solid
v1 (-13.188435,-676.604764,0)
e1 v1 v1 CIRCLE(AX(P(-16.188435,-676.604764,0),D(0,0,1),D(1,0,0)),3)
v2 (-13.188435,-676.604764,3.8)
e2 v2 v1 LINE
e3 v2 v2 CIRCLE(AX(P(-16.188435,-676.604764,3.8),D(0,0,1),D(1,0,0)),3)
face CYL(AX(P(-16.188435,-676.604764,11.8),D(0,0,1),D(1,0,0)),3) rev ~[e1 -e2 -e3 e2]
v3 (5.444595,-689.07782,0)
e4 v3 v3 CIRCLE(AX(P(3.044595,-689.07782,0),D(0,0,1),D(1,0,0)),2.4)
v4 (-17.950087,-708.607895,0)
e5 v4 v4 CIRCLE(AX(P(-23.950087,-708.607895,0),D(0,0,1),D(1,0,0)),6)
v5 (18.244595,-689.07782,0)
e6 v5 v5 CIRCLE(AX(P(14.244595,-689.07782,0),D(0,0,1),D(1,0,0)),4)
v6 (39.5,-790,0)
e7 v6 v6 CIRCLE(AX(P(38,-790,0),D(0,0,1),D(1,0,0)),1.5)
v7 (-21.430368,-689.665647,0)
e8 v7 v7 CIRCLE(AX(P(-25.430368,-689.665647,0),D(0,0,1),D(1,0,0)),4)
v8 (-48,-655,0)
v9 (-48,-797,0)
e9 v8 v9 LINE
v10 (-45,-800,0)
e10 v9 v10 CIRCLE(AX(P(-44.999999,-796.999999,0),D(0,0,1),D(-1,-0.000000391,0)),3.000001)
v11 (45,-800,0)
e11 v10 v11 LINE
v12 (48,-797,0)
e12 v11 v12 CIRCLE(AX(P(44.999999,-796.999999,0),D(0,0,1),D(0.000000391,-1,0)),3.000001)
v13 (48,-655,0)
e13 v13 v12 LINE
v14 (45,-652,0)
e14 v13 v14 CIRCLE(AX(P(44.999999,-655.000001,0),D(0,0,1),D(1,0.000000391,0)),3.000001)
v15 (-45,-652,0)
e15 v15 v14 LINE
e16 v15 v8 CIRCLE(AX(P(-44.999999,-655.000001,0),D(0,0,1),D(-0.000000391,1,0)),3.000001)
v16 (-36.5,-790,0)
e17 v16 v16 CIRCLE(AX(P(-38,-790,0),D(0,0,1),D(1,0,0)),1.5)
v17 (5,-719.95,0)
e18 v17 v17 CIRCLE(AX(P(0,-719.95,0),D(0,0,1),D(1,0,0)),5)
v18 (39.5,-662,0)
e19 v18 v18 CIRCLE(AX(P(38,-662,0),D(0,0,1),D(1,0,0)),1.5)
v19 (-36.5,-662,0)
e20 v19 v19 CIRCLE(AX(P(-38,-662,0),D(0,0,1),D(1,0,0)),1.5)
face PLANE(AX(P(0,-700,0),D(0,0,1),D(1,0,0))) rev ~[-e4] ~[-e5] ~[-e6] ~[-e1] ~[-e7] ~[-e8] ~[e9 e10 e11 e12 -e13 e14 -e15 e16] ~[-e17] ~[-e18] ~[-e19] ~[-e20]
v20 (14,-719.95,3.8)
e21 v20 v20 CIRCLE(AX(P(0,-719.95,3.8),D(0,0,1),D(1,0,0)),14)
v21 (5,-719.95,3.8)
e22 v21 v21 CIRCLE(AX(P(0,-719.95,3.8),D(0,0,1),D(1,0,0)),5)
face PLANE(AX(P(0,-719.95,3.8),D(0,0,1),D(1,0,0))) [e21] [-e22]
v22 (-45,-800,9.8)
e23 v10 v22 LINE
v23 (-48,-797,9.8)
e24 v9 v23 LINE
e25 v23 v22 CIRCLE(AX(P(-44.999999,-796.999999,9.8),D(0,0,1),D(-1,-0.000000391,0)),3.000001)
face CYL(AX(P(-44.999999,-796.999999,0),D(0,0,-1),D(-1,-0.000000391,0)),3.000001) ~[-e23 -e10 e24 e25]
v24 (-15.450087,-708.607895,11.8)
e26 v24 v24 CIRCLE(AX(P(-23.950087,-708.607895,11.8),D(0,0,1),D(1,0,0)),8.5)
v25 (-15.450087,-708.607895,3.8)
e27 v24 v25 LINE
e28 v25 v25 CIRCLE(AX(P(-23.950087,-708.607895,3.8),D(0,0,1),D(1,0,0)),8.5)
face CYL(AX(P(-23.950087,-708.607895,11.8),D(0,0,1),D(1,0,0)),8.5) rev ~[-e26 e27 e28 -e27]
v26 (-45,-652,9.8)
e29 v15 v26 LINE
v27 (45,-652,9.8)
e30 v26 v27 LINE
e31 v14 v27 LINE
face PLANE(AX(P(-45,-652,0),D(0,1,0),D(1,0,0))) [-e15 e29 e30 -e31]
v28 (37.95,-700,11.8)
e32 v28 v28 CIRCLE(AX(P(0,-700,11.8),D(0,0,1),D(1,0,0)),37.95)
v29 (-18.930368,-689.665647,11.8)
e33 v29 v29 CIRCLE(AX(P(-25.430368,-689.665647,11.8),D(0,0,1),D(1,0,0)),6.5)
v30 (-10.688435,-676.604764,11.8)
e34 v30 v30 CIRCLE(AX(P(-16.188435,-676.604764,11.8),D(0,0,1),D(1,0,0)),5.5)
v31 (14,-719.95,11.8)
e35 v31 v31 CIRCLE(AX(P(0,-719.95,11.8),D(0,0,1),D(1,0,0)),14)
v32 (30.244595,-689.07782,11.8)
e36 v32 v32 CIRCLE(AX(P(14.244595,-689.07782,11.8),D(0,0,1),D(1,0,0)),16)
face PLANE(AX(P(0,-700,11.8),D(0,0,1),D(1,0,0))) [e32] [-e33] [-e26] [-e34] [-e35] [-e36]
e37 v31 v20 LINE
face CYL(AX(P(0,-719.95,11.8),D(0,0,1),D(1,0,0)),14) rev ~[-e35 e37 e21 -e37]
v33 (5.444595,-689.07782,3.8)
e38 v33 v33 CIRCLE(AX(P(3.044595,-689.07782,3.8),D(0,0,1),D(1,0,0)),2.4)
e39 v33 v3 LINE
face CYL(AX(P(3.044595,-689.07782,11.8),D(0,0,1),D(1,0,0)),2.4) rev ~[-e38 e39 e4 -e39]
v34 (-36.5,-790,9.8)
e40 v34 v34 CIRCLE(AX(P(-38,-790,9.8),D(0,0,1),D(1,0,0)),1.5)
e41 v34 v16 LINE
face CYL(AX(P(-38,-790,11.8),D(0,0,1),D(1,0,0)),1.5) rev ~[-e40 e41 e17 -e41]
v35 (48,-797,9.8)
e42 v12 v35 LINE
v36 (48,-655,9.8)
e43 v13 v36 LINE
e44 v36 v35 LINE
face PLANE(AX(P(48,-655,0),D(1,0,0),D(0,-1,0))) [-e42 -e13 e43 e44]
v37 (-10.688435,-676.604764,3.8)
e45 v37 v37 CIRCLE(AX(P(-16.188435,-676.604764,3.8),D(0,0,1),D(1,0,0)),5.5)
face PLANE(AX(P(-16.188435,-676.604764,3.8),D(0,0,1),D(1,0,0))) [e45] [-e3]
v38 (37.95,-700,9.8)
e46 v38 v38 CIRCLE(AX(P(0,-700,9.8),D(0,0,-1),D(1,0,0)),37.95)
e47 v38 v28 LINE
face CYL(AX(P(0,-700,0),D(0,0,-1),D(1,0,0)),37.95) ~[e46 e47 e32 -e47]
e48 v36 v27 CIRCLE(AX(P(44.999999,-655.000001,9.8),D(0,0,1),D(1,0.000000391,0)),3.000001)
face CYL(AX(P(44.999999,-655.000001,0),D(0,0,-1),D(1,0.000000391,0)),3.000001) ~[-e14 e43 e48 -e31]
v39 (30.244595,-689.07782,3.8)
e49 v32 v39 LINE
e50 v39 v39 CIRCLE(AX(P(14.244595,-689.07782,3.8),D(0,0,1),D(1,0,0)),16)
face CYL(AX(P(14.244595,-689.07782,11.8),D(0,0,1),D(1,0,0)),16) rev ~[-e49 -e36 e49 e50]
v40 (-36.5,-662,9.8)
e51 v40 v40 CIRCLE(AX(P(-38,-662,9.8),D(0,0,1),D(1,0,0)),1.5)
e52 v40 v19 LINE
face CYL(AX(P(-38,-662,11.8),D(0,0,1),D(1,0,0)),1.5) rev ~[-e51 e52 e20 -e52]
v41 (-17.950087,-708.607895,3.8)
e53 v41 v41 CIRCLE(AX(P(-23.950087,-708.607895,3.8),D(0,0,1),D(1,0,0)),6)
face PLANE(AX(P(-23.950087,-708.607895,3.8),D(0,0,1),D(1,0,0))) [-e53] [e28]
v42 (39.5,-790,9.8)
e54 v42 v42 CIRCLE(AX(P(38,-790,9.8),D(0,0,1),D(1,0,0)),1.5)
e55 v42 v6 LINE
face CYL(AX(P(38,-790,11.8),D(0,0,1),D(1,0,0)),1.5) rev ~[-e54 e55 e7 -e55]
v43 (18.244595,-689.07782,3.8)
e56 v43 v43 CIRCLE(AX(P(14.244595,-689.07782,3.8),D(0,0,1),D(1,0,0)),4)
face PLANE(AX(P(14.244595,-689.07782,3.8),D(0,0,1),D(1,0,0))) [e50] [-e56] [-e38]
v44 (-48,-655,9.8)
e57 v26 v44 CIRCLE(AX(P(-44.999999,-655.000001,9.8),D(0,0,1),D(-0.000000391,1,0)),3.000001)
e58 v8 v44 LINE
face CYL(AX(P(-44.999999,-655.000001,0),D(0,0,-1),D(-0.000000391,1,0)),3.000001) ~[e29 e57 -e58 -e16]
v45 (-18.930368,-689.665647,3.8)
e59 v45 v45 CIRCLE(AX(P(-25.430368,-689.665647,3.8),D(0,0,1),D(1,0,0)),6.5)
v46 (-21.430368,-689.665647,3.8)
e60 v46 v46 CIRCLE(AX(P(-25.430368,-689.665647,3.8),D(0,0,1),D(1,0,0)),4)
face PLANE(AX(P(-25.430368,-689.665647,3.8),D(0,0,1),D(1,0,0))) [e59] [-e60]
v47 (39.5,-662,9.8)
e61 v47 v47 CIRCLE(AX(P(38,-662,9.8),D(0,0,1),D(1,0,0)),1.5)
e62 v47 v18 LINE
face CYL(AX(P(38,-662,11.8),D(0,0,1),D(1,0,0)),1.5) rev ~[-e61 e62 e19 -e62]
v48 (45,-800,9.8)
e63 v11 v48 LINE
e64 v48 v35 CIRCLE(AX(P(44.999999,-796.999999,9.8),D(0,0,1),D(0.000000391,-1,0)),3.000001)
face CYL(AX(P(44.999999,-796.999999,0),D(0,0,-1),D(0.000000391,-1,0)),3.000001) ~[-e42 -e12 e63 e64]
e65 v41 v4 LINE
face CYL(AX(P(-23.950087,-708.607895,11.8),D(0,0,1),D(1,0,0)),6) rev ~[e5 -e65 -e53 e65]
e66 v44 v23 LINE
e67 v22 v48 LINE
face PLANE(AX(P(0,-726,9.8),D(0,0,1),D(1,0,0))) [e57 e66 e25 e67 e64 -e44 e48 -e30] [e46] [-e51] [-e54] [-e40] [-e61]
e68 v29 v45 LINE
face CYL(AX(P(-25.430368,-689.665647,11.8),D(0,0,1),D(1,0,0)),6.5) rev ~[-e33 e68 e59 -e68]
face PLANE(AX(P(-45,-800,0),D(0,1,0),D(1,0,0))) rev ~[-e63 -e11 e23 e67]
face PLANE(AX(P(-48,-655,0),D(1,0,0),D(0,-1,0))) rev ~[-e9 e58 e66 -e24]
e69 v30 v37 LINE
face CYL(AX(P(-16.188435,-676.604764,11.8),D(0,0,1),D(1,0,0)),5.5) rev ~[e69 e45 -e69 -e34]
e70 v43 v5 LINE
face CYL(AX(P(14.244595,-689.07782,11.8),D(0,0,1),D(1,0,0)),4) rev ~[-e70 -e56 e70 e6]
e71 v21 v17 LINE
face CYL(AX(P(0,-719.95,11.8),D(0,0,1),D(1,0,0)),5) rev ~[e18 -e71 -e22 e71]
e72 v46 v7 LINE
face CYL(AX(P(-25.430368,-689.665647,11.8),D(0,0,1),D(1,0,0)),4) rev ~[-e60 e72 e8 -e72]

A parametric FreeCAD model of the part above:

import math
import FreeCAD as App
import Part
import Sketcher
from FreeCAD import Vector

doc = App.newDocument("Part")
body = doc.addObject("PartDesign::Body", "Body")

# Sketch on XY plane
sketch1 = body.newObject("Sketcher::SketchObject", "Sketch")
sketch1.AttachmentSupport = (doc.getObject("XY_Plane"), [""])
sketch1.MapMode = "FlatFace"
sketch1.addGeometry(Part.LineSegment(Vector(-48, 145, 0), Vector(-48, 3, 0)), False)
sketch1.addGeometry(Part.ArcOfCircle(Part.Circle(Vector(-45, 3, 0), Vector(0, 0, 1), 3), math.radians(-180), math.radians(-90)), False)
sketch1.addGeometry(Part.LineSegment(Vector(-45, 0, 0), Vector(45, 0, 0)), False)
sketch1.addGeometry(Part.ArcOfCircle(Part.Circle(Vector(45, 3, 0), Vector(0, 0, 1), 3), math.radians(-90), math.radians(0)), False)
sketch1.addGeometry(Part.LineSegment(Vector(48, 3, 0), Vector(48, 145, 0)), False)
sketch1.addGeometry(Part.ArcOfCircle(Part.Circle(Vector(45, 145, 0), Vector(0, 0, 1), 3), math.radians(0), math.radians(90)), False)
sketch1.addGeometry(Part.LineSegment(Vector(45, 148, 0), Vector(-45, 148, 0)), False)
sketch1.addGeometry(Part.ArcOfCircle(Part.Circle(Vector(-45, 145, 0), Vector(0, 0, 1), 3), math.radians(90), math.radians(180)), False)
sketch1.addConstraint(Sketcher.Constraint("Tangent", 0, 2, 1, 1))
sketch1.addConstraint(Sketcher.Constraint("Tangent", 1, 2, 2, 1))
sketch1.addConstraint(Sketcher.Constraint("Tangent", 2, 2, 3, 1))
sketch1.addConstraint(Sketcher.Constraint("Tangent", 3, 2, 4, 1))
sketch1.addConstraint(Sketcher.Constraint("Tangent", 4, 2, 5, 1))
sketch1.addConstraint(Sketcher.Constraint("Tangent", 5, 2, 6, 1))
sketch1.addConstraint(Sketcher.Constraint("Tangent", 6, 2, 7, 1))
sketch1.addConstraint(Sketcher.Constraint("Tangent", 7, 2, 0, 1))
sketch1.addConstraint(Sketcher.Constraint("Vertical", 0))
sketch1.addConstraint(Sketcher.Constraint("Horizontal", 2))
sketch1.addConstraint(Sketcher.Constraint("Vertical", 4))
sketch1.addConstraint(Sketcher.Constraint("Horizontal", 6))
sketch1.addConstraint(Sketcher.Constraint("Equal", 1, 3))
sketch1.addConstraint(Sketcher.Constraint("Equal", 3, 5))
sketch1.addConstraint(Sketcher.Constraint("Equal", 5, 7))
sketch1.addConstraint(Sketcher.Constraint("Symmetric", 1, 2, 2, 2, -1, 1))
sketch1.addConstraint(Sketcher.Constraint("Radius", 1, 3.000001))
sketch1.addConstraint(Sketcher.Constraint("DistanceX", 2, 1, 2, 2, 90.0))
sketch1.addConstraint(Sketcher.Constraint("DistanceY", 0, 2, 0, 1, 142.0))
pad1 = body.newObject("PartDesign::Pad", "Pad")
pad1.Profile = sketch1
pad1.Length = 9.8

# Sketch on XY plane
sketch2 = body.newObject("Sketcher::SketchObject", "Sketch001")
sketch2.AttachmentSupport = (doc.getObject("XY_Plane"), [""])
sketch2.MapMode = "FlatFace"
sketch2.addGeometry(Part.Circle(Vector(0, 100, 0), Vector(0, 0, 1), 38), False)
sketch2.addConstraint(Sketcher.Constraint("PointOnObject", 0, 3, -2))
sketch2.addConstraint(Sketcher.Constraint("Diameter", 0, 75.9))
sketch2.addConstraint(Sketcher.Constraint("DistanceY", -1, 1, 0, 3, 100.0))
pad2 = body.newObject("PartDesign::Pad", "Pad001")
pad2.Profile = sketch2
pad2.Length = 11.8

# Sketch on XY plane
sketch3 = body.newObject("Sketcher::SketchObject", "Sketch002")
sketch3.AttachmentSupport = (doc.getObject("XY_Plane"), [""])
sketch3.MapMode = "FlatFace"
sketch3.AttachmentOffset = App.Placement(Vector(0, 0, 11.8), App.Rotation())
sketch3.addGeometry(Part.Circle(Vector(-16, 123, 0), Vector(0, 0, 1), 6), False)
sketch3.addGeometry(Part.Circle(Vector(-25, 110, 0), Vector(0, 0, 1), 6), False)
sketch3.addGeometry(Part.Circle(Vector(-24, 91, 0), Vector(0, 0, 1), 8), False)
sketch3.addGeometry(Part.Circle(Vector(0, 80, 0), Vector(0, 0, 1), 14), False)
sketch3.addGeometry(Part.Circle(Vector(14, 111, 0), Vector(0, 0, 1), 16), False)
sketch3.addConstraint(Sketcher.Constraint("PointOnObject", 3, 3, -2))
sketch3.addConstraint(Sketcher.Constraint("Diameter", 0, 11.0))
sketch3.addConstraint(Sketcher.Constraint("Diameter", 1, 13.0))
sketch3.addConstraint(Sketcher.Constraint("Diameter", 2, 17.0))
sketch3.addConstraint(Sketcher.Constraint("Diameter", 3, 28.0))
sketch3.addConstraint(Sketcher.Constraint("Diameter", 4, 32.0))
sketch3.addConstraint(Sketcher.Constraint("DistanceY", -1, 1, 3, 3, 80.05))
sketch3.addConstraint(Sketcher.Constraint("DistanceX", 1, 3, -1, 1, 25.430368))
sketch3.addConstraint(Sketcher.Constraint("DistanceY", -1, 1, 4, 3, 110.92218))
sketch3.addConstraint(Sketcher.Constraint("DistanceX", 1, 3, 2, 3, 1.480281))
sketch3.addConstraint(Sketcher.Constraint("DistanceY", 2, 3, 0, 3, 32.003131))
sketch3.addConstraint(Sketcher.Constraint("DistanceX", 0, 3, 4, 3, 30.43303))
sketch3.addConstraint(Sketcher.Constraint("DistanceX", 0, 3, -1, 1, 16.188435))
sketch3.addConstraint(Sketcher.Constraint("DistanceY", -1, 1, 0, 3, 123.395236))
sketch3.addConstraint(Sketcher.Constraint("DistanceY", -1, 1, 1, 3, 110.334353))
pocket1 = body.newObject("PartDesign::Pocket", "Pocket")
pocket1.Profile = sketch3
pocket1.Length = 8

# Sketch on XY plane
sketch4 = body.newObject("Sketcher::SketchObject", "Sketch003")
sketch4.AttachmentSupport = (doc.getObject("XY_Plane"), [""])
sketch4.MapMode = "FlatFace"
sketch4.AttachmentOffset = App.Placement(Vector(0, 0, 11.8), App.Rotation())
sketch4.addGeometry(Part.Circle(Vector(-38, 138, 0), Vector(0, 0, 1), 1.5), False)
sketch4.addGeometry(Part.Circle(Vector(38, 138, 0), Vector(0, 0, 1), 1.5), False)
sketch4.addGeometry(Part.Circle(Vector(14.2, 110.9, 0), Vector(0, 0, 1), 4), False)
sketch4.addGeometry(Part.Circle(Vector(3, 110.9, 0), Vector(0, 0, 1), 2.4), False)
sketch4.addGeometry(Part.Circle(Vector(-16.2, 123.4, 0), Vector(0, 0, 1), 3), False)
sketch4.addGeometry(Part.Circle(Vector(-25.4, 110.3, 0), Vector(0, 0, 1), 4), False)
sketch4.addGeometry(Part.Circle(Vector(-24, 91.4, 0), Vector(0, 0, 1), 6), False)
sketch4.addGeometry(Part.Circle(Vector(0, 80, 0), Vector(0, 0, 1), 5), False)
sketch4.addGeometry(Part.Circle(Vector(-38, 10, 0), Vector(0, 0, 1), 1.5), False)
sketch4.addGeometry(Part.Circle(Vector(38, 10, 0), Vector(0, 0, 1), 1.5), False)
sketch4.addConstraint(Sketcher.Constraint("Equal", 0, 1))
sketch4.addConstraint(Sketcher.Constraint("Equal", 2, 5))
sketch4.addConstraint(Sketcher.Constraint("Equal", 1, 8))
sketch4.addConstraint(Sketcher.Constraint("Equal", 8, 9))
sketch4.addConstraint(Sketcher.Constraint("Symmetric", 0, 3, 1, 3, -2))
sketch4.addConstraint(Sketcher.Constraint("Symmetric", 8, 3, 9, 3, -2))
sketch4.addConstraint(Sketcher.Constraint("PointOnObject", 7, 3, -2))
sketch4.addConstraint(Sketcher.Constraint("Horizontal", 2, 3, 3, 3))
sketch4.addConstraint(Sketcher.Constraint("Vertical", 0, 3, 8, 3))
sketch4.addConstraint(Sketcher.Constraint("Diameter", 0, 3.0))
sketch4.addConstraint(Sketcher.Constraint("Diameter", 2, 8.0))
sketch4.addConstraint(Sketcher.Constraint("Diameter", 4, 6.0))
sketch4.addConstraint(Sketcher.Constraint("Diameter", 6, 12.0))
sketch4.addConstraint(Sketcher.Constraint("Diameter", 7, 10.0))
sketch4.addConstraint(Sketcher.Constraint("Diameter", 3, 4.8))
sketch4.addConstraint(Sketcher.Constraint("DistanceX", 0, 3, -1, 1, 38.0))
sketch4.addConstraint(Sketcher.Constraint("DistanceY", -1, 1, 0, 3, 138.0))
sketch4.addConstraint(Sketcher.Constraint("DistanceY", -1, 1, 8, 3, 10.0))
sketch4.addConstraint(Sketcher.Constraint("DistanceX", 3, 3, 2, 3, 11.2))
sketch4.addConstraint(Sketcher.Constraint("DistanceY", -1, 1, 7, 3, 80.05))
sketch4.addConstraint(Sketcher.Constraint("DistanceY", -1, 1, 2, 3, 110.92218))
sketch4.addConstraint(Sketcher.Constraint("DistanceX", 5, 3, -1, 1, 25.430368))
sketch4.addConstraint(Sketcher.Constraint("DistanceX", 4, 3, 3, 3, 19.23303))
sketch4.addConstraint(Sketcher.Constraint("DistanceX", 5, 3, 6, 3, 1.480281))
sketch4.addConstraint(Sketcher.Constraint("DistanceY", 6, 3, 4, 3, 32.003131))
sketch4.addConstraint(Sketcher.Constraint("DistanceX", -1, 1, 2, 3, 14.244595))
sketch4.addConstraint(Sketcher.Constraint("DistanceY", -1, 1, 4, 3, 123.395236))
sketch4.addConstraint(Sketcher.Constraint("DistanceY", -1, 1, 5, 3, 110.334353))
pocket2 = body.newObject("PartDesign::Pocket", "Pocket001")
pocket2.Profile = sketch4
pocket2.Type = "ThroughAll"
body2 = doc.addObject("PartDesign::Body", "Body001")
doc.recompute()

body.Placement = App.Placement(Vector(0, -800, 0), App.Rotation(Vector(0, 0, 1), 0))
boolean = body2.newObject("PartDesign::Boolean", "Boolean")
boolean.Type = "Fuse"
boolean.addObjects([body])

doc.recompute()
